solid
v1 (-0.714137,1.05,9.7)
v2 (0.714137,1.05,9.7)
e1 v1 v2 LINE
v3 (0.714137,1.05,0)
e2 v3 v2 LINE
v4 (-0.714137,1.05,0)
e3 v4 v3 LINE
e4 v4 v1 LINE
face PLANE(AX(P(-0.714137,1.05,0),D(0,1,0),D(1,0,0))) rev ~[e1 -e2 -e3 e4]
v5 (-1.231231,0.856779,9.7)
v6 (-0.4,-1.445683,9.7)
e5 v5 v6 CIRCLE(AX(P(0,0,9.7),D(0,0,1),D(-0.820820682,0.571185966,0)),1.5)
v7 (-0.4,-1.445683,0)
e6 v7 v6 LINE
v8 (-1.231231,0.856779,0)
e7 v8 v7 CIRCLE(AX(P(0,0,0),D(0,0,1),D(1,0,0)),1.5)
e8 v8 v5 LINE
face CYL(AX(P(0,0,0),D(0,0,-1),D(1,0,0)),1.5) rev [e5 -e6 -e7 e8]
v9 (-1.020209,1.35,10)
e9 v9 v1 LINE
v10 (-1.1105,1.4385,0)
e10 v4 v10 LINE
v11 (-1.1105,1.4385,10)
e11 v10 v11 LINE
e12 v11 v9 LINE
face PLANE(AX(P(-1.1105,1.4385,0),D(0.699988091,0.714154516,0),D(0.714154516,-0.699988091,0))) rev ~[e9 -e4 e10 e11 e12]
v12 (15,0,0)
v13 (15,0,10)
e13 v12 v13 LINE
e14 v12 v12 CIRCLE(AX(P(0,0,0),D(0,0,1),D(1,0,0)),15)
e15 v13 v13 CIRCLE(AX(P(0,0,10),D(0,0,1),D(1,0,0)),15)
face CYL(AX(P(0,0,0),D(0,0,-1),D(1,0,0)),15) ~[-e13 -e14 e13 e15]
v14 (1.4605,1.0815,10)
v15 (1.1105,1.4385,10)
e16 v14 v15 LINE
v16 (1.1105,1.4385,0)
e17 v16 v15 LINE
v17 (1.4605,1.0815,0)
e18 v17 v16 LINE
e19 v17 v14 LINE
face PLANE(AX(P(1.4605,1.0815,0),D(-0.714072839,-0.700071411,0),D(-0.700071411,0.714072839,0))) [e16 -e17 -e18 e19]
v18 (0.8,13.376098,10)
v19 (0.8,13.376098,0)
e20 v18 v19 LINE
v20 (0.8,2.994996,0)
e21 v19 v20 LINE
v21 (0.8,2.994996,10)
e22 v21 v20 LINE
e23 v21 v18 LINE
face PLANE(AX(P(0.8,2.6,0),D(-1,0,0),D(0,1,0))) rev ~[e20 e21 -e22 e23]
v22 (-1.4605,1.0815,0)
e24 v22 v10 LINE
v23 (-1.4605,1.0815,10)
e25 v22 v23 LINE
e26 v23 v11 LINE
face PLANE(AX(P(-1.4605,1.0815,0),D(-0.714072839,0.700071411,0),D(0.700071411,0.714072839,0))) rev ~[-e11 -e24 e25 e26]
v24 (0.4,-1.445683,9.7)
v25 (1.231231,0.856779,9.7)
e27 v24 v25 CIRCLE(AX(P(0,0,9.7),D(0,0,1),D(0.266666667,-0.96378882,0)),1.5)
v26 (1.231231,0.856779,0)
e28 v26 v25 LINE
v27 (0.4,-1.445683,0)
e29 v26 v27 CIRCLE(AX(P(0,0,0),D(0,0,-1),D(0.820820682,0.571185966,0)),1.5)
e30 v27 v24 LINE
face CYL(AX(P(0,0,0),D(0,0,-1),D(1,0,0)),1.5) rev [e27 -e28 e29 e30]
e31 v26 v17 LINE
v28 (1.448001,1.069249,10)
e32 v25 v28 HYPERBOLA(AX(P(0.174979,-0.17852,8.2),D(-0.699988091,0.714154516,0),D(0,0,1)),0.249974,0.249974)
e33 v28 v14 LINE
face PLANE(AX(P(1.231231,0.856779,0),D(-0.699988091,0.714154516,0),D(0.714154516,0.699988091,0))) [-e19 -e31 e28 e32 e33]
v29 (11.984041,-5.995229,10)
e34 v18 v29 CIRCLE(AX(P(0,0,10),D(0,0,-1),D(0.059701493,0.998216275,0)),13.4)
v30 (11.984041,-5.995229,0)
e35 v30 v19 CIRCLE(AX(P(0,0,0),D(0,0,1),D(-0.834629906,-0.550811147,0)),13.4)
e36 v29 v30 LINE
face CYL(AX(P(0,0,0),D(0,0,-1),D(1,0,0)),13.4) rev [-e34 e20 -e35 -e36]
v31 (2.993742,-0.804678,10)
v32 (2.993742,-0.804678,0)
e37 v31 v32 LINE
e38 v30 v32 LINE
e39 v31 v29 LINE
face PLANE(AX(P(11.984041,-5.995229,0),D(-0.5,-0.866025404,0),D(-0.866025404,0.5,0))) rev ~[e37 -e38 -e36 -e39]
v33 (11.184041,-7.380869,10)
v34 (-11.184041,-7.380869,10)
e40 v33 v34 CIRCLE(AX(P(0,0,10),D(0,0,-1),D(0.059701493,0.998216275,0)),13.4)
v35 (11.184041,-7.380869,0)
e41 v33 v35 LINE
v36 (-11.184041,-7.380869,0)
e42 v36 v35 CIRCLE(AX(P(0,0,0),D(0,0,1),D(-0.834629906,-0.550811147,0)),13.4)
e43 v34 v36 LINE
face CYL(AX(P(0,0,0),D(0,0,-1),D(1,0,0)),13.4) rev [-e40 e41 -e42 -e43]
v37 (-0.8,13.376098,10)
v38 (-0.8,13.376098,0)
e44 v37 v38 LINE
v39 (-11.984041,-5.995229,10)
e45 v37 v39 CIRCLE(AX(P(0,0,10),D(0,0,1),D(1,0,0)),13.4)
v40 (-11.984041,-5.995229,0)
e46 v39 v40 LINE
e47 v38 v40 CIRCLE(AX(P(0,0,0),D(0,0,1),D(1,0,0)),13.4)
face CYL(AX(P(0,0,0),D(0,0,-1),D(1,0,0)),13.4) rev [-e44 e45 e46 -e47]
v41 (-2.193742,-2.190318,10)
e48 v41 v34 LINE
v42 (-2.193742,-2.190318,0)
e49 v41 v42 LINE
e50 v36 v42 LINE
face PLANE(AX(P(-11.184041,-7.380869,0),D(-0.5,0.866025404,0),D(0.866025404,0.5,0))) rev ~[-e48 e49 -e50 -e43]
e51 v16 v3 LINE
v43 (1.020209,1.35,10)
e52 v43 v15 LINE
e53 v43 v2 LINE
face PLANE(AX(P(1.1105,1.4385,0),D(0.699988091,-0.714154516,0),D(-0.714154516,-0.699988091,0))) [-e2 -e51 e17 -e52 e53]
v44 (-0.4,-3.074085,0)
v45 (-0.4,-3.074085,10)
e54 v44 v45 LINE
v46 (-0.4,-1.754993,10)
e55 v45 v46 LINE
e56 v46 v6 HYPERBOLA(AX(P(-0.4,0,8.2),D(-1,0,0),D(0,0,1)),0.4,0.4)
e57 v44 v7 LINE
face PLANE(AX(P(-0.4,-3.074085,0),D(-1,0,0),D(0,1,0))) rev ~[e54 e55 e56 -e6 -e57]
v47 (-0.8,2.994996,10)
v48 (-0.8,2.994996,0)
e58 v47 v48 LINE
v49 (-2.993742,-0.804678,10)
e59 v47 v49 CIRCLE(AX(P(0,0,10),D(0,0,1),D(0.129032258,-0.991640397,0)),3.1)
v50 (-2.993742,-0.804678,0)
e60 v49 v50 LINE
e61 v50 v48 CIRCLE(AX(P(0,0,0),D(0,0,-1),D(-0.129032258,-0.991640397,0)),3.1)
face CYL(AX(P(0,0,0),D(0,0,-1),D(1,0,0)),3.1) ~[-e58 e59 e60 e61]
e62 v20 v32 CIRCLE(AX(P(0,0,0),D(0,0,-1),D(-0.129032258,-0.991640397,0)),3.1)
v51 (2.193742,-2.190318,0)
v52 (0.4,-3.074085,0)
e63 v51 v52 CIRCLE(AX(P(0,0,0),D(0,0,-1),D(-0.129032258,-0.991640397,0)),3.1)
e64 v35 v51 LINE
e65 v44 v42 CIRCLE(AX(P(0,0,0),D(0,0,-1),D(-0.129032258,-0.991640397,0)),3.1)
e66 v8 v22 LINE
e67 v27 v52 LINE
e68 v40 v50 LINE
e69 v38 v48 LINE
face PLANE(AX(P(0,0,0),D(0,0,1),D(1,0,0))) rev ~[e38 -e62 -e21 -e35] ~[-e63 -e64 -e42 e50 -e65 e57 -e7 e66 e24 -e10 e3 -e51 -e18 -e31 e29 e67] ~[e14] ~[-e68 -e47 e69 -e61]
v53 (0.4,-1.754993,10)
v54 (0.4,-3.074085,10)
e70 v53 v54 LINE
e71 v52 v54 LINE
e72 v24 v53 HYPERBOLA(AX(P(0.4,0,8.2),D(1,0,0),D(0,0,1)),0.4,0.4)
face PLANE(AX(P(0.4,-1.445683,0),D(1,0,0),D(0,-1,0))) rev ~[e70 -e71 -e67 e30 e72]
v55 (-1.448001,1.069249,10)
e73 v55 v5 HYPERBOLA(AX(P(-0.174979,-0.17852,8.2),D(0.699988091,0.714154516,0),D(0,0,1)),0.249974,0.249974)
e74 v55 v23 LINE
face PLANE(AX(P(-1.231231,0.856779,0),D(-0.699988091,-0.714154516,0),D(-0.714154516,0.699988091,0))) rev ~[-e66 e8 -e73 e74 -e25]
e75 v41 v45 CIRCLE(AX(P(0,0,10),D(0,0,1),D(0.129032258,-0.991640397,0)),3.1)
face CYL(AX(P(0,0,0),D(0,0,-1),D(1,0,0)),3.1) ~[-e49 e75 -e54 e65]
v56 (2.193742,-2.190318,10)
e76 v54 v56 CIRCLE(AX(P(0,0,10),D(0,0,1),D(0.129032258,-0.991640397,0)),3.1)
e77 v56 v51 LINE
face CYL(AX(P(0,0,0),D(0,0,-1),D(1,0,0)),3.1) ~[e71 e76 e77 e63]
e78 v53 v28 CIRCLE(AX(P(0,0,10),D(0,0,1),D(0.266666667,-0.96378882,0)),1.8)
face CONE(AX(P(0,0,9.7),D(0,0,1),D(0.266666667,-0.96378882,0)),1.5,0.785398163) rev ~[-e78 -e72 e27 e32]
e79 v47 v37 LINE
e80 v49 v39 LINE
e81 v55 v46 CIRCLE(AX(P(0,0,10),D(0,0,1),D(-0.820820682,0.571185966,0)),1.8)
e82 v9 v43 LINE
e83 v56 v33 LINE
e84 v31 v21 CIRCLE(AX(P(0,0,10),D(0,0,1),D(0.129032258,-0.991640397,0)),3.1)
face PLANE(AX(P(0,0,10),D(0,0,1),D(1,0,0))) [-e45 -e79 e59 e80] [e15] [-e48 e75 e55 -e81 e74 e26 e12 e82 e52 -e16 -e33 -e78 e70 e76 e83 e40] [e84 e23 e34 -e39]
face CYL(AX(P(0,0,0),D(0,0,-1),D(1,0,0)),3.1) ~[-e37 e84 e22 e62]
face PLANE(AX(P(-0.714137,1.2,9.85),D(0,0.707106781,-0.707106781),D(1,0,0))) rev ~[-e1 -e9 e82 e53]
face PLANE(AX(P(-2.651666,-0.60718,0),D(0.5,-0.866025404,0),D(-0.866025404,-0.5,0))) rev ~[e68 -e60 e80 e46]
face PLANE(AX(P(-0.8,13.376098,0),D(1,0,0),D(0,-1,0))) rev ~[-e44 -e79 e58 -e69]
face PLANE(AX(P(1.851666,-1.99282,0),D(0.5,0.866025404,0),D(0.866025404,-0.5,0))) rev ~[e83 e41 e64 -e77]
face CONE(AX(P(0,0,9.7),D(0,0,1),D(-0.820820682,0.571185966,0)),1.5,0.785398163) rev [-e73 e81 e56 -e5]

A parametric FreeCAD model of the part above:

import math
import FreeCAD as App
import Part
import Sketcher
from FreeCAD import Vector


def edges_at(feature, points):
    """Names of the edges that pass closest to the given points."""
    edges = feature.Shape.Edges
    near = lambda p: min(range(len(edges)), key=lambda i: edges[i].distToShape(Part.Vertex(*p))[0])
    return sorted({f"Edge{near(p) + 1}" for p in points})


def add_polygon(sketch, points):
    """Adds a closed chain of lines whose ends are joined by coincident constraints."""
    first, n = sketch.GeometryCount, len(points)
    for a, b in zip(points, points[1:] + points[:1]):
        sketch.addGeometry(Part.LineSegment(App.Vector(*a, 0), App.Vector(*b, 0)), False)
    for i in range(n):
        sketch.addConstraint(Sketcher.Constraint("Coincident", first + i, 2, first + (i + 1) % n, 1))

doc = App.newDocument("Part")
body = doc.addObject("PartDesign::Body", "Body")
body.AllowCompound = True

sketch1 = doc.addObject("Sketcher::SketchObject", "Sketch")
body.addObject(sketch1)
sketch1.AttachmentSupport = (doc.XY_Plane, [""])
sketch1.MapMode = "FlatFace"
sketch1.addGeometry([
    Part.ArcOfCircle(Part.Circle(Vector(0, 0, 0), Vector(0, 0, 1), 1.5), math.radians(-75), math.radians(35)),
    Part.LineSegment(Vector(0.4, -1.45, 0), Vector(0.4, -3.07, 0)),
    Part.ArcOfCircle(Part.Circle(Vector(0, 0, 0), Vector(0, 0, 1), 3.1), math.radians(-83), math.radians(263)),
    Part.LineSegment(Vector(-0.4, -3.07, 0), Vector(-0.4, -1.45, 0)),
    Part.ArcOfCircle(Part.Circle(Vector(0, 0, 0), Vector(0, 0, 1), 1.5), math.radians(145), math.radians(255)),
    Part.LineSegment(Vector(-1.23, 0.86, 0), Vector(-1.46, 1.08, 0)),
    Part.LineSegment(Vector(-1.46, 1.08, 0), Vector(-1.11, 1.44, 0)),
    Part.LineSegment(Vector(-1.11, 1.44, 0), Vector(-0.71, 1.05, 0)),
    Part.LineSegment(Vector(-0.71, 1.05, 0), Vector(0.71, 1.05, 0)),
    Part.LineSegment(Vector(0.71, 1.05, 0), Vector(1.11, 1.44, 0)),
    Part.LineSegment(Vector(1.11, 1.44, 0), Vector(1.46, 1.08, 0)),
    Part.LineSegment(Vector(1.46, 1.08, 0), Vector(1.23, 0.86, 0)),
    Part.Circle(Vector(0, 0, 0), Vector(0, 0, 1), 15),
    Part.Circle(Vector(0, 0, 0), Vector(0, 0, 1), 13.4),
], False)
sketch1.addConstraint([
    Sketcher.Constraint("Coincident", 0, 1, 1, 1),
    Sketcher.Constraint("Coincident", 1, 2, 2, 1),
    Sketcher.Constraint("Coincident", 2, 2, 3, 1),
    Sketcher.Constraint("Coincident", 3, 2, 4, 2),
    Sketcher.Constraint("Coincident", 4, 1, 5, 1),
    Sketcher.Constraint("Coincident", 5, 2, 6, 1),
    Sketcher.Constraint("Coincident", 6, 2, 7, 1),
    Sketcher.Constraint("Coincident", 7, 2, 8, 1),
    Sketcher.Constraint("Coincident", 8, 2, 9, 1),
    Sketcher.Constraint("Coincident", 9, 2, 10, 1),
    Sketcher.Constraint("Coincident", 10, 2, 11, 1),
    Sketcher.Constraint("Coincident", 11, 2, 0, 2),
    Sketcher.Constraint("Vertical", 1),
    Sketcher.Constraint("Vertical", 3),
    Sketcher.Constraint("Horizontal", 8),
    Sketcher.Constraint("Coincident", 0, 3, -1, 1),
    Sketcher.Constraint("Coincident", 2, 3, -1, 1),
    Sketcher.Constraint("Coincident", 4, 3, -1, 1),
    Sketcher.Constraint("Coincident", 12, 3, -1, 1),
    Sketcher.Constraint("Coincident", 13, 3, -1, 1),
    Sketcher.Constraint("Equal", 0, 4),
    Sketcher.Constraint("Symmetric", 6, 2, 9, 2, -2),
    Sketcher.Constraint("Symmetric", 5, 2, 10, 2, -2),
    Sketcher.Constraint("Perpendicular", 5, 6),
    Sketcher.Constraint("Perpendicular", 6, 7),
    Sketcher.Constraint("Perpendicular", 9, 10),
    Sketcher.Constraint("Perpendicular", 10, 11),
    Sketcher.Constraint("Horizontal", 1, 2, 2, 2),
    Sketcher.Constraint("Diameter", 12, 30.0),
    Sketcher.Constraint("Radius", 0, 1.5),
    Sketcher.Constraint("Distance", 6, 0.5),
    Sketcher.Constraint("Diameter", 13, 26.8),
    Sketcher.Constraint("Radius", 2, 3.1),
    Sketcher.Constraint("DistanceX", 2, 2, 1, 2, 0.8),
    Sketcher.Constraint("DistanceY", -1, 1, 7, 2, 1.05),
    Sketcher.Constraint("DistanceX", 5, 2, 6, 2, 0.35),
    Sketcher.Constraint("Distance", 5, 0.321),
    Sketcher.Constraint("Distance", 7, 0.555),
])
pad1 = doc.addObject("PartDesign::Pad", "Pad")
body.addObject(pad1)
pad1.Profile = sketch1
pad1.Length = 10

sketch2 = doc.addObject("Sketcher::SketchObject", "Sketch001")
body.addObject(sketch2)
sketch2.AttachmentSupport = (doc.XY_Plane, [""])
sketch2.MapMode = "FlatFace"
add_polygon(sketch2, [(-0.8, 2.6), (0.8, 2.6), (0.8, 13.4), (-0.8, 13.4)])
sketch2.addConstraint([
    Sketcher.Constraint("Horizontal", 0),
    Sketcher.Constraint("Vertical", 1),
    Sketcher.Constraint("Horizontal", 2),
    Sketcher.Constraint("Vertical", 3),
    Sketcher.Constraint("DistanceX", 0, 1, 0, 2, 1.6),
    Sketcher.Constraint("DistanceY", -1, 1, 0, 2, 2.6),
    Sketcher.Constraint("DistanceY", 1, 1, 1, 2, 10.8),
    Sketcher.Constraint("DistanceX", -1, 1, 0, 2, 0.8),
])
pad2 = doc.addObject("PartDesign::Pad", "Pad001")
body.addObject(pad2)
pad2.Profile = sketch2
pad2.Length = 10
doc.recompute()

polarpattern = doc.addObject("PartDesign::PolarPattern", "PolarPattern")
body.addObject(polarpattern)
polarpattern.Originals = [pad2]
polarpattern.Axis = (doc.Z_Axis, [""])
polarpattern.Angle = 360
polarpattern.Occurrences = 3
body.Tip = polarpattern
doc.recompute()

chamfer = doc.addObject("PartDesign::Chamfer", "Chamfer")
body.addObject(chamfer)
chamfer.Base = (polarpattern, edges_at(polarpattern, [(-1.411, -0.509, 10), (0, 1.05, 10), (1.411, -0.509, 10)]))
chamfer.Size = 0.3

doc.recompute()
